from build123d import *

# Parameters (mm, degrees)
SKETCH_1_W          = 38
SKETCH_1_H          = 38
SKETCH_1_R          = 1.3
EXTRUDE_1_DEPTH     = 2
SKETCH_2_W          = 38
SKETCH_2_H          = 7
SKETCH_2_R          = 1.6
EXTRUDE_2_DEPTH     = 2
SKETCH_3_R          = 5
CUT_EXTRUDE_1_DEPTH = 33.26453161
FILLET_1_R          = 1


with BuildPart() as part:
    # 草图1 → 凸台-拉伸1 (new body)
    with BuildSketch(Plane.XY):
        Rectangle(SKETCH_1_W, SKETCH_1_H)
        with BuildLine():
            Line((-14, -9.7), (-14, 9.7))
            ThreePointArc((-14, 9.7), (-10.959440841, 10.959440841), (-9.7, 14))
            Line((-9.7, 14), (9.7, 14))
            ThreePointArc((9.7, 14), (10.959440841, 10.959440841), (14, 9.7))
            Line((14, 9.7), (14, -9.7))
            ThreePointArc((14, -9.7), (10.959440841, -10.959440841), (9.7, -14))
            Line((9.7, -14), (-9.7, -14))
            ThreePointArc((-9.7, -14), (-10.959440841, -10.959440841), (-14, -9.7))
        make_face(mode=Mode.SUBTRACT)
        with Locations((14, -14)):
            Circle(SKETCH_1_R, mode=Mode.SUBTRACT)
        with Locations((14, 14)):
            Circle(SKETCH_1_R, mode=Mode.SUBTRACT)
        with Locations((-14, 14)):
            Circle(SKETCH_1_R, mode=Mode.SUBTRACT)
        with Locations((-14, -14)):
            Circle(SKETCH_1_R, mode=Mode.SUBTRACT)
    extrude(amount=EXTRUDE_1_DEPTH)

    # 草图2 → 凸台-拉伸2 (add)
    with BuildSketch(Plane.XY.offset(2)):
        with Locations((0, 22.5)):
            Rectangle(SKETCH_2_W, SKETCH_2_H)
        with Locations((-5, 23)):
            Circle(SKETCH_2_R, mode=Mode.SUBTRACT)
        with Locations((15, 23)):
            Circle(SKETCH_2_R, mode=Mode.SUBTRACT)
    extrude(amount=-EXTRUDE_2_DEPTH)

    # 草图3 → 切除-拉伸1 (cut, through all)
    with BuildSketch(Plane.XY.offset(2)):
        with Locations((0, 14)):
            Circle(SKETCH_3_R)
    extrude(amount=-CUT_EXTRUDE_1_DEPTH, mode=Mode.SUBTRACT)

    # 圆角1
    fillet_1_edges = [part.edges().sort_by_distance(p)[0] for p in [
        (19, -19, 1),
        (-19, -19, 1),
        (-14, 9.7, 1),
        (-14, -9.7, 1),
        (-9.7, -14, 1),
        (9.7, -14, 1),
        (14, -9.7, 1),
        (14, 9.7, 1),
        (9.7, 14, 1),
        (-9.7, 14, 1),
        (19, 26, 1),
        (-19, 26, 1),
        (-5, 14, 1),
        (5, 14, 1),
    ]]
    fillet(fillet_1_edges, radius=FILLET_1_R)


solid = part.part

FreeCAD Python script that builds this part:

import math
import FreeCAD as App
import Part
import Sketcher
from FreeCAD import Vector


def edges_at(feature, points):
    """Names of the edges that pass closest to the given points."""
    edges = feature.Shape.Edges
    near = lambda p: min(range(len(edges)), key=lambda i: edges[i].distToShape(Part.Vertex(*p))[0])
    return sorted({f"Edge{near(p) + 1}" for p in points})

doc = App.newDocument("Part")
body = doc.addObject("PartDesign::Body", "Body")

# Sketch on XY plane
sketch1 = doc.addObject("Sketcher::SketchObject", "Sketch")
body.addObject(sketch1)
sketch1.AttachmentSupport = (doc.XY_Plane, [""])
sketch1.MapMode = "FlatFace"
sketch1.addGeometry(Part.LineSegment(Vector(-19, 19, 0), Vector(-19, -19, 0)), False)
sketch1.addGeometry(Part.LineSegment(Vector(-19, -19, 0), Vector(19, -19, 0)), False)
sketch1.addGeometry(Part.LineSegment(Vector(19, -19, 0), Vector(19, 19, 0)), False)
sketch1.addGeometry(Part.LineSegment(Vector(19, 19, 0), Vector(-19, 19, 0)), False)
sketch1.addGeometry(Part.Circle(Vector(-14, -14, 0), Vector(0, 0, 1), 1.3), False)
sketch1.addGeometry(Part.Circle(Vector(14, -14, 0), Vector(0, 0, 1), 1.3), False)
sketch1.addGeometry(Part.Circle(Vector(-14, 14, 0), Vector(0, 0, 1), 1.3), False)
sketch1.addGeometry(Part.ArcOfCircle(Part.Circle(Vector(-14, -14, 0), Vector(0, 0, 1), 4.3), math.radians(0), math.radians(90)), False)
sketch1.addGeometry(Part.LineSegment(Vector(-14, -9.7, 0), Vector(-14, 9.7, 0)), False)
sketch1.addGeometry(Part.ArcOfCircle(Part.Circle(Vector(-14, 14, 0), Vector(0, 0, 1), 4.3), math.radians(-90), math.radians(0)), False)
sketch1.addGeometry(Part.LineSegment(Vector(-9.7, 14, 0), Vector(9.7, 14, 0)), False)
sketch1.addGeometry(Part.ArcOfCircle(Part.Circle(Vector(14, 14, 0), Vector(0, 0, 1), 4.3), math.radians(180), math.radians(270)), False)
sketch1.addGeometry(Part.LineSegment(Vector(14, 9.7, 0), Vector(14, -9.7, 0)), False)
sketch1.addGeometry(Part.ArcOfCircle(Part.Circle(Vector(14, -14, 0), Vector(0, 0, 1), 4.3), math.radians(90), math.radians(180)), False)
sketch1.addGeometry(Part.LineSegment(Vector(9.7, -14, 0), Vector(-9.7, -14, 0)), False)
sketch1.addGeometry(Part.Circle(Vector(14, 14, 0), Vector(0, 0, 1), 1.3), False)
sketch1.addConstraint(Sketcher.Constraint("Coincident", 0, 2, 1, 1))
sketch1.addConstraint(Sketcher.Constraint("Coincident", 1, 2, 2, 1))
sketch1.addConstraint(Sketcher.Constraint("Coincident", 2, 2, 3, 1))
sketch1.addConstraint(Sketcher.Constraint("Coincident", 3, 2, 0, 1))
sketch1.addConstraint(Sketcher.Constraint("Coincident", 7, 2, 8, 1))
sketch1.addConstraint(Sketcher.Constraint("Coincident", 8, 2, 9, 1))
sketch1.addConstraint(Sketcher.Constraint("Coincident", 9, 2, 10, 1))
sketch1.addConstraint(Sketcher.Constraint("Coincident", 10, 2, 11, 1))
sketch1.addConstraint(Sketcher.Constraint("Coincident", 11, 2, 12, 1))
sketch1.addConstraint(Sketcher.Constraint("Coincident", 12, 2, 13, 1))
sketch1.addConstraint(Sketcher.Constraint("Coincident", 13, 2, 14, 1))
sketch1.addConstraint(Sketcher.Constraint("Coincident", 14, 2, 7, 1))
sketch1.addConstraint(Sketcher.Constraint("Vertical", 0))
sketch1.addConstraint(Sketcher.Constraint("Horizontal", 1))
sketch1.addConstraint(Sketcher.Constraint("Vertical", 2))
sketch1.addConstraint(Sketcher.Constraint("Horizontal", 3))
sketch1.addConstraint(Sketcher.Constraint("Vertical", 8))
sketch1.addConstraint(Sketcher.Constraint("Horizontal", 10))
sketch1.addConstraint(Sketcher.Constraint("Vertical", 12))
sketch1.addConstraint(Sketcher.Constraint("Horizontal", 14))
sketch1.addConstraint(Sketcher.Constraint("Coincident", 7, 3, 4, 3))
sketch1.addConstraint(Sketcher.Constraint("Coincident", 9, 3, 6, 3))
sketch1.addConstraint(Sketcher.Constraint("Coincident", 13, 3, 5, 3))
sketch1.addConstraint(Sketcher.Constraint("Coincident", 15, 3, 11, 3))
sketch1.addConstraint(Sketcher.Constraint("Equal", 4, 5))
sketch1.addConstraint(Sketcher.Constraint("Equal", 5, 6))
sketch1.addConstraint(Sketcher.Constraint("Equal", 7, 9))
sketch1.addConstraint(Sketcher.Constraint("Equal", 9, 11))
sketch1.addConstraint(Sketcher.Constraint("Equal", 11, 13))
sketch1.addConstraint(Sketcher.Constraint("Equal", 6, 15))
sketch1.addConstraint(Sketcher.Constraint("Symmetric", 5, 3, 6, 3, -1, 1))
sketch1.addConstraint(Sketcher.Constraint("Symmetric", 4, 3, 11, 3, -1, 1))
sketch1.addConstraint(Sketcher.Constraint("Symmetric", 0, 2, 2, 2, -1, 1))
sketch1.addConstraint(Sketcher.Constraint("Symmetric", 4, 3, 5, 3, -2))
sketch1.addConstraint(Sketcher.Constraint("Horizontal", 15, 3, 9, 2))
sketch1.addConstraint(Sketcher.Constraint("Horizontal", 7, 3, 13, 2))
sketch1.addConstraint(Sketcher.Constraint("Vertical", 9, 3, 7, 2))
sketch1.addConstraint(Sketcher.Constraint("Vertical", 15, 3, 11, 2))
sketch1.addConstraint(Sketcher.Constraint("Equal", 3, 0))
sketch1.addConstraint(Sketcher.Constraint("Equal", 14, 8))
sketch1.addConstraint(Sketcher.Constraint("Diameter", 4, 2.6))
sketch1.addConstraint(Sketcher.Constraint("Radius", 7, 4.3))
sketch1.addConstraint(Sketcher.Constraint("DistanceX", 1, 1, 1, 2, 38.0))
sketch1.addConstraint(Sketcher.Constraint("DistanceX", 10, 1, 10, 2, 19.4))
pad1 = doc.addObject("PartDesign::Pad", "Pad")
body.addObject(pad1)
pad1.Profile = sketch1
pad1.Length = 2

# Sketch on XY plane
sketch2 = doc.addObject("Sketcher::SketchObject", "Sketch001")
body.addObject(sketch2)
sketch2.AttachmentSupport = (doc.XY_Plane, [""])
sketch2.MapMode = "FlatFace"
sketch2.AttachmentOffset = App.Placement(Vector(0, 0, 2), App.Rotation())
sketch2.addGeometry(Part.LineSegment(Vector(-19, 26, 0), Vector(-19, 19, 0)), False)
sketch2.addGeometry(Part.LineSegment(Vector(-19, 19, 0), Vector(19, 19, 0)), False)
sketch2.addGeometry(Part.LineSegment(Vector(19, 19, 0), Vector(19, 26, 0)), False)
sketch2.addGeometry(Part.LineSegment(Vector(19, 26, 0), Vector(-19, 26, 0)), False)
sketch2.addGeometry(Part.Circle(Vector(-5, 23, 0), Vector(0, 0, 1), 1.6), False)
sketch2.addGeometry(Part.Circle(Vector(15, 23, 0), Vector(0, 0, 1), 1.6), False)
sketch2.addConstraint(Sketcher.Constraint("Coincident", 0, 2, 1, 1))
sketch2.addConstraint(Sketcher.Constraint("Coincident", 1, 2, 2, 1))
sketch2.addConstraint(Sketcher.Constraint("Coincident", 2, 2, 3, 1))
sketch2.addConstraint(Sketcher.Constraint("Coincident", 3, 2, 0, 1))
sketch2.addConstraint(Sketcher.Constraint("Vertical", 0))
sketch2.addConstraint(Sketcher.Constraint("Horizontal", 1))
sketch2.addConstraint(Sketcher.Constraint("Vertical", 2))
sketch2.addConstraint(Sketcher.Constraint("Horizontal", 3))
sketch2.addConstraint(Sketcher.Constraint("Equal", 4, 5))
sketch2.addConstraint(Sketcher.Constraint("Horizontal", 4, 3, 5, 3))
sketch2.addConstraint(Sketcher.Constraint("Diameter", 4, 3.2))
sketch2.addConstraint(Sketcher.Constraint("DistanceX", 1, 1, 1, 2, 38.0))
sketch2.addConstraint(Sketcher.Constraint("DistanceY", 0, 2, 0, 1, 7.0))
sketch2.addConstraint(Sketcher.Constraint("DistanceX", 4, 3, -1, 1, 5.0))
sketch2.addConstraint(Sketcher.Constraint("DistanceY", -1, 1, 4, 3, 23.0))
sketch2.addConstraint(Sketcher.Constraint("DistanceX", -1, 1, 5, 3, 15.0))
sketch2.addConstraint(Sketcher.Constraint("DistanceX", 0, 2, -1, 1, 19.0))
sketch2.addConstraint(Sketcher.Constraint("DistanceY", -1, 1, 0, 2, 19.0))
pad2 = doc.addObject("PartDesign::Pad", "Pad001")
body.addObject(pad2)
pad2.Profile = sketch2
pad2.Length = 2
pad2.Reversed = True

# Sketch on XY plane
sketch3 = doc.addObject("Sketcher::SketchObject", "Sketch002")
body.addObject(sketch3)
sketch3.AttachmentSupport = (doc.XY_Plane, [""])
sketch3.MapMode = "FlatFace"
sketch3.AttachmentOffset = App.Placement(Vector(0, 0, 2), App.Rotation())
sketch3.addGeometry(Part.Circle(Vector(0, 14, 0), Vector(0, 0, 1), 5), False)
sketch3.addConstraint(Sketcher.Constraint("PointOnObject", 0, 3, -2))
sketch3.addConstraint(Sketcher.Constraint("Diameter", 0, 10.0))
sketch3.addConstraint(Sketcher.Constraint("DistanceY", -1, 1, 0, 3, 14.0))
pocket1 = doc.addObject("PartDesign::Pocket", "Pocket")
body.addObject(pocket1)
pocket1.Profile = sketch3
pocket1.Type = "ThroughAll"
doc.recompute()

fillet = doc.addObject("PartDesign::Fillet", "Fillet")
body.addObject(fillet)
fillet.Base = (pocket1, edges_at(pocket1, [
    (19, -19, 1),
    (-19, -19, 1),
    (-14, 9.7, 1),
    (-14, -9.7, 1),
    (-9.7, -14, 1),
    (9.7, -14, 1),
    (14, -9.7, 1),
    (14, 9.7, 1),
    (9.7, 14, 1),
    (-9.7, 14, 1),
    (19, 26, 1),
    (-19, 26, 1),
    (-5, 14, 1),
    (5, 14, 1),
]))
fillet.Radius = 1

doc.recompute()
